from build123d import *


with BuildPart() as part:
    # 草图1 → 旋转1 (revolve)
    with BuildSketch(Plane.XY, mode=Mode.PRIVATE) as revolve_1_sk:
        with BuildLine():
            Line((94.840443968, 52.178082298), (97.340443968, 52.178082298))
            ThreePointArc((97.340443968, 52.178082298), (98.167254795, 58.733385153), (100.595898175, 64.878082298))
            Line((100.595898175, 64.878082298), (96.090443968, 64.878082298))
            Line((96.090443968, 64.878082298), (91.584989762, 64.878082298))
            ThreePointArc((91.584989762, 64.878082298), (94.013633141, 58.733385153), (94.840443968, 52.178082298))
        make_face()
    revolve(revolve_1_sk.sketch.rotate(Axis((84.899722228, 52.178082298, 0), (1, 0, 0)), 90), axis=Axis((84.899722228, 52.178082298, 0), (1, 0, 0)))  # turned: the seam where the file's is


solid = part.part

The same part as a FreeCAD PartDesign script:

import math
import FreeCAD as App
import Part
import Sketcher

V = App.Vector

doc = App.newDocument("Part")
body = doc.addObject("PartDesign::Body", "Body")

# Sketch on XY plane
sketch1 = body.newObject("Sketcher::SketchObject", "Sketch")
sketch1.AttachmentSupport = (doc.getObject("XY_Plane"), [""])
sketch1.MapMode = "FlatFace"
sketch1.addGeometry(Part.LineSegment(V(94.8, 52.2, 0), V(97.3, 52.2, 0)), False)
sketch1.addGeometry(Part.ArcOfCircle(Part.Circle(V(123.7, 52.2, 0), V(0, 0, 1), 26.4), math.radians(151), math.radians(180)), False)
sketch1.addGeometry(Part.LineSegment(V(100.6, 64.9, 0), V(91.6, 64.9, 0)), False)
sketch1.addGeometry(Part.ArcOfCircle(Part.Circle(V(68.4, 52.2, 0), V(0, 0, 1), 26.4), math.radians(0), math.radians(29)), False)
sketch1.addGeometry(Part.LineSegment(V(68.4, 52.2, 0), V(123.7, 52.2, 0)), True)  # axis
sketch1.addConstraint(Sketcher.Constraint("Coincident", 0, 2, 1, 2))
sketch1.addConstraint(Sketcher.Constraint("Coincident", 1, 1, 2, 1))
sketch1.addConstraint(Sketcher.Constraint("Coincident", 2, 2, 3, 2))
sketch1.addConstraint(Sketcher.Constraint("Coincident", 3, 1, 0, 1))
sketch1.addConstraint(Sketcher.Constraint("Horizontal", 0))
sketch1.addConstraint(Sketcher.Constraint("Horizontal", 2))
sketch1.addConstraint(Sketcher.Constraint("Horizontal", 4))
sketch1.addConstraint(Sketcher.Constraint("Coincident", 4, 1, 3, 3))
sketch1.addConstraint(Sketcher.Constraint("Coincident", 4, 2, 1, 3))
sketch1.addConstraint(Sketcher.Constraint("Equal", 1, 3))
sketch1.addConstraint(Sketcher.Constraint("Horizontal", 3, 3, 0, 2))
sketch1.addConstraint(Sketcher.Constraint("Radius", 1, 26.4))
sketch1.addConstraint(Sketcher.Constraint("DistanceX", 0, 1, 0, 2, 2.5))
sketch1.addConstraint(Sketcher.Constraint("DistanceY", 0, 2, 1, 1, 12.7))
sketch1.addConstraint(Sketcher.Constraint("DistanceX", -1, 1, 1, 1, 100.595898))
sketch1.addConstraint(Sketcher.Constraint("DistanceY", -1, 1, 1, 3, 52.178082))
revolution = body.newObject("PartDesign::Revolution", "Revolution")
revolution.Profile = sketch1
revolution.ReferenceAxis = (sketch1, ["Axis0"])
revolution.Angle = 360

doc.recompute()
